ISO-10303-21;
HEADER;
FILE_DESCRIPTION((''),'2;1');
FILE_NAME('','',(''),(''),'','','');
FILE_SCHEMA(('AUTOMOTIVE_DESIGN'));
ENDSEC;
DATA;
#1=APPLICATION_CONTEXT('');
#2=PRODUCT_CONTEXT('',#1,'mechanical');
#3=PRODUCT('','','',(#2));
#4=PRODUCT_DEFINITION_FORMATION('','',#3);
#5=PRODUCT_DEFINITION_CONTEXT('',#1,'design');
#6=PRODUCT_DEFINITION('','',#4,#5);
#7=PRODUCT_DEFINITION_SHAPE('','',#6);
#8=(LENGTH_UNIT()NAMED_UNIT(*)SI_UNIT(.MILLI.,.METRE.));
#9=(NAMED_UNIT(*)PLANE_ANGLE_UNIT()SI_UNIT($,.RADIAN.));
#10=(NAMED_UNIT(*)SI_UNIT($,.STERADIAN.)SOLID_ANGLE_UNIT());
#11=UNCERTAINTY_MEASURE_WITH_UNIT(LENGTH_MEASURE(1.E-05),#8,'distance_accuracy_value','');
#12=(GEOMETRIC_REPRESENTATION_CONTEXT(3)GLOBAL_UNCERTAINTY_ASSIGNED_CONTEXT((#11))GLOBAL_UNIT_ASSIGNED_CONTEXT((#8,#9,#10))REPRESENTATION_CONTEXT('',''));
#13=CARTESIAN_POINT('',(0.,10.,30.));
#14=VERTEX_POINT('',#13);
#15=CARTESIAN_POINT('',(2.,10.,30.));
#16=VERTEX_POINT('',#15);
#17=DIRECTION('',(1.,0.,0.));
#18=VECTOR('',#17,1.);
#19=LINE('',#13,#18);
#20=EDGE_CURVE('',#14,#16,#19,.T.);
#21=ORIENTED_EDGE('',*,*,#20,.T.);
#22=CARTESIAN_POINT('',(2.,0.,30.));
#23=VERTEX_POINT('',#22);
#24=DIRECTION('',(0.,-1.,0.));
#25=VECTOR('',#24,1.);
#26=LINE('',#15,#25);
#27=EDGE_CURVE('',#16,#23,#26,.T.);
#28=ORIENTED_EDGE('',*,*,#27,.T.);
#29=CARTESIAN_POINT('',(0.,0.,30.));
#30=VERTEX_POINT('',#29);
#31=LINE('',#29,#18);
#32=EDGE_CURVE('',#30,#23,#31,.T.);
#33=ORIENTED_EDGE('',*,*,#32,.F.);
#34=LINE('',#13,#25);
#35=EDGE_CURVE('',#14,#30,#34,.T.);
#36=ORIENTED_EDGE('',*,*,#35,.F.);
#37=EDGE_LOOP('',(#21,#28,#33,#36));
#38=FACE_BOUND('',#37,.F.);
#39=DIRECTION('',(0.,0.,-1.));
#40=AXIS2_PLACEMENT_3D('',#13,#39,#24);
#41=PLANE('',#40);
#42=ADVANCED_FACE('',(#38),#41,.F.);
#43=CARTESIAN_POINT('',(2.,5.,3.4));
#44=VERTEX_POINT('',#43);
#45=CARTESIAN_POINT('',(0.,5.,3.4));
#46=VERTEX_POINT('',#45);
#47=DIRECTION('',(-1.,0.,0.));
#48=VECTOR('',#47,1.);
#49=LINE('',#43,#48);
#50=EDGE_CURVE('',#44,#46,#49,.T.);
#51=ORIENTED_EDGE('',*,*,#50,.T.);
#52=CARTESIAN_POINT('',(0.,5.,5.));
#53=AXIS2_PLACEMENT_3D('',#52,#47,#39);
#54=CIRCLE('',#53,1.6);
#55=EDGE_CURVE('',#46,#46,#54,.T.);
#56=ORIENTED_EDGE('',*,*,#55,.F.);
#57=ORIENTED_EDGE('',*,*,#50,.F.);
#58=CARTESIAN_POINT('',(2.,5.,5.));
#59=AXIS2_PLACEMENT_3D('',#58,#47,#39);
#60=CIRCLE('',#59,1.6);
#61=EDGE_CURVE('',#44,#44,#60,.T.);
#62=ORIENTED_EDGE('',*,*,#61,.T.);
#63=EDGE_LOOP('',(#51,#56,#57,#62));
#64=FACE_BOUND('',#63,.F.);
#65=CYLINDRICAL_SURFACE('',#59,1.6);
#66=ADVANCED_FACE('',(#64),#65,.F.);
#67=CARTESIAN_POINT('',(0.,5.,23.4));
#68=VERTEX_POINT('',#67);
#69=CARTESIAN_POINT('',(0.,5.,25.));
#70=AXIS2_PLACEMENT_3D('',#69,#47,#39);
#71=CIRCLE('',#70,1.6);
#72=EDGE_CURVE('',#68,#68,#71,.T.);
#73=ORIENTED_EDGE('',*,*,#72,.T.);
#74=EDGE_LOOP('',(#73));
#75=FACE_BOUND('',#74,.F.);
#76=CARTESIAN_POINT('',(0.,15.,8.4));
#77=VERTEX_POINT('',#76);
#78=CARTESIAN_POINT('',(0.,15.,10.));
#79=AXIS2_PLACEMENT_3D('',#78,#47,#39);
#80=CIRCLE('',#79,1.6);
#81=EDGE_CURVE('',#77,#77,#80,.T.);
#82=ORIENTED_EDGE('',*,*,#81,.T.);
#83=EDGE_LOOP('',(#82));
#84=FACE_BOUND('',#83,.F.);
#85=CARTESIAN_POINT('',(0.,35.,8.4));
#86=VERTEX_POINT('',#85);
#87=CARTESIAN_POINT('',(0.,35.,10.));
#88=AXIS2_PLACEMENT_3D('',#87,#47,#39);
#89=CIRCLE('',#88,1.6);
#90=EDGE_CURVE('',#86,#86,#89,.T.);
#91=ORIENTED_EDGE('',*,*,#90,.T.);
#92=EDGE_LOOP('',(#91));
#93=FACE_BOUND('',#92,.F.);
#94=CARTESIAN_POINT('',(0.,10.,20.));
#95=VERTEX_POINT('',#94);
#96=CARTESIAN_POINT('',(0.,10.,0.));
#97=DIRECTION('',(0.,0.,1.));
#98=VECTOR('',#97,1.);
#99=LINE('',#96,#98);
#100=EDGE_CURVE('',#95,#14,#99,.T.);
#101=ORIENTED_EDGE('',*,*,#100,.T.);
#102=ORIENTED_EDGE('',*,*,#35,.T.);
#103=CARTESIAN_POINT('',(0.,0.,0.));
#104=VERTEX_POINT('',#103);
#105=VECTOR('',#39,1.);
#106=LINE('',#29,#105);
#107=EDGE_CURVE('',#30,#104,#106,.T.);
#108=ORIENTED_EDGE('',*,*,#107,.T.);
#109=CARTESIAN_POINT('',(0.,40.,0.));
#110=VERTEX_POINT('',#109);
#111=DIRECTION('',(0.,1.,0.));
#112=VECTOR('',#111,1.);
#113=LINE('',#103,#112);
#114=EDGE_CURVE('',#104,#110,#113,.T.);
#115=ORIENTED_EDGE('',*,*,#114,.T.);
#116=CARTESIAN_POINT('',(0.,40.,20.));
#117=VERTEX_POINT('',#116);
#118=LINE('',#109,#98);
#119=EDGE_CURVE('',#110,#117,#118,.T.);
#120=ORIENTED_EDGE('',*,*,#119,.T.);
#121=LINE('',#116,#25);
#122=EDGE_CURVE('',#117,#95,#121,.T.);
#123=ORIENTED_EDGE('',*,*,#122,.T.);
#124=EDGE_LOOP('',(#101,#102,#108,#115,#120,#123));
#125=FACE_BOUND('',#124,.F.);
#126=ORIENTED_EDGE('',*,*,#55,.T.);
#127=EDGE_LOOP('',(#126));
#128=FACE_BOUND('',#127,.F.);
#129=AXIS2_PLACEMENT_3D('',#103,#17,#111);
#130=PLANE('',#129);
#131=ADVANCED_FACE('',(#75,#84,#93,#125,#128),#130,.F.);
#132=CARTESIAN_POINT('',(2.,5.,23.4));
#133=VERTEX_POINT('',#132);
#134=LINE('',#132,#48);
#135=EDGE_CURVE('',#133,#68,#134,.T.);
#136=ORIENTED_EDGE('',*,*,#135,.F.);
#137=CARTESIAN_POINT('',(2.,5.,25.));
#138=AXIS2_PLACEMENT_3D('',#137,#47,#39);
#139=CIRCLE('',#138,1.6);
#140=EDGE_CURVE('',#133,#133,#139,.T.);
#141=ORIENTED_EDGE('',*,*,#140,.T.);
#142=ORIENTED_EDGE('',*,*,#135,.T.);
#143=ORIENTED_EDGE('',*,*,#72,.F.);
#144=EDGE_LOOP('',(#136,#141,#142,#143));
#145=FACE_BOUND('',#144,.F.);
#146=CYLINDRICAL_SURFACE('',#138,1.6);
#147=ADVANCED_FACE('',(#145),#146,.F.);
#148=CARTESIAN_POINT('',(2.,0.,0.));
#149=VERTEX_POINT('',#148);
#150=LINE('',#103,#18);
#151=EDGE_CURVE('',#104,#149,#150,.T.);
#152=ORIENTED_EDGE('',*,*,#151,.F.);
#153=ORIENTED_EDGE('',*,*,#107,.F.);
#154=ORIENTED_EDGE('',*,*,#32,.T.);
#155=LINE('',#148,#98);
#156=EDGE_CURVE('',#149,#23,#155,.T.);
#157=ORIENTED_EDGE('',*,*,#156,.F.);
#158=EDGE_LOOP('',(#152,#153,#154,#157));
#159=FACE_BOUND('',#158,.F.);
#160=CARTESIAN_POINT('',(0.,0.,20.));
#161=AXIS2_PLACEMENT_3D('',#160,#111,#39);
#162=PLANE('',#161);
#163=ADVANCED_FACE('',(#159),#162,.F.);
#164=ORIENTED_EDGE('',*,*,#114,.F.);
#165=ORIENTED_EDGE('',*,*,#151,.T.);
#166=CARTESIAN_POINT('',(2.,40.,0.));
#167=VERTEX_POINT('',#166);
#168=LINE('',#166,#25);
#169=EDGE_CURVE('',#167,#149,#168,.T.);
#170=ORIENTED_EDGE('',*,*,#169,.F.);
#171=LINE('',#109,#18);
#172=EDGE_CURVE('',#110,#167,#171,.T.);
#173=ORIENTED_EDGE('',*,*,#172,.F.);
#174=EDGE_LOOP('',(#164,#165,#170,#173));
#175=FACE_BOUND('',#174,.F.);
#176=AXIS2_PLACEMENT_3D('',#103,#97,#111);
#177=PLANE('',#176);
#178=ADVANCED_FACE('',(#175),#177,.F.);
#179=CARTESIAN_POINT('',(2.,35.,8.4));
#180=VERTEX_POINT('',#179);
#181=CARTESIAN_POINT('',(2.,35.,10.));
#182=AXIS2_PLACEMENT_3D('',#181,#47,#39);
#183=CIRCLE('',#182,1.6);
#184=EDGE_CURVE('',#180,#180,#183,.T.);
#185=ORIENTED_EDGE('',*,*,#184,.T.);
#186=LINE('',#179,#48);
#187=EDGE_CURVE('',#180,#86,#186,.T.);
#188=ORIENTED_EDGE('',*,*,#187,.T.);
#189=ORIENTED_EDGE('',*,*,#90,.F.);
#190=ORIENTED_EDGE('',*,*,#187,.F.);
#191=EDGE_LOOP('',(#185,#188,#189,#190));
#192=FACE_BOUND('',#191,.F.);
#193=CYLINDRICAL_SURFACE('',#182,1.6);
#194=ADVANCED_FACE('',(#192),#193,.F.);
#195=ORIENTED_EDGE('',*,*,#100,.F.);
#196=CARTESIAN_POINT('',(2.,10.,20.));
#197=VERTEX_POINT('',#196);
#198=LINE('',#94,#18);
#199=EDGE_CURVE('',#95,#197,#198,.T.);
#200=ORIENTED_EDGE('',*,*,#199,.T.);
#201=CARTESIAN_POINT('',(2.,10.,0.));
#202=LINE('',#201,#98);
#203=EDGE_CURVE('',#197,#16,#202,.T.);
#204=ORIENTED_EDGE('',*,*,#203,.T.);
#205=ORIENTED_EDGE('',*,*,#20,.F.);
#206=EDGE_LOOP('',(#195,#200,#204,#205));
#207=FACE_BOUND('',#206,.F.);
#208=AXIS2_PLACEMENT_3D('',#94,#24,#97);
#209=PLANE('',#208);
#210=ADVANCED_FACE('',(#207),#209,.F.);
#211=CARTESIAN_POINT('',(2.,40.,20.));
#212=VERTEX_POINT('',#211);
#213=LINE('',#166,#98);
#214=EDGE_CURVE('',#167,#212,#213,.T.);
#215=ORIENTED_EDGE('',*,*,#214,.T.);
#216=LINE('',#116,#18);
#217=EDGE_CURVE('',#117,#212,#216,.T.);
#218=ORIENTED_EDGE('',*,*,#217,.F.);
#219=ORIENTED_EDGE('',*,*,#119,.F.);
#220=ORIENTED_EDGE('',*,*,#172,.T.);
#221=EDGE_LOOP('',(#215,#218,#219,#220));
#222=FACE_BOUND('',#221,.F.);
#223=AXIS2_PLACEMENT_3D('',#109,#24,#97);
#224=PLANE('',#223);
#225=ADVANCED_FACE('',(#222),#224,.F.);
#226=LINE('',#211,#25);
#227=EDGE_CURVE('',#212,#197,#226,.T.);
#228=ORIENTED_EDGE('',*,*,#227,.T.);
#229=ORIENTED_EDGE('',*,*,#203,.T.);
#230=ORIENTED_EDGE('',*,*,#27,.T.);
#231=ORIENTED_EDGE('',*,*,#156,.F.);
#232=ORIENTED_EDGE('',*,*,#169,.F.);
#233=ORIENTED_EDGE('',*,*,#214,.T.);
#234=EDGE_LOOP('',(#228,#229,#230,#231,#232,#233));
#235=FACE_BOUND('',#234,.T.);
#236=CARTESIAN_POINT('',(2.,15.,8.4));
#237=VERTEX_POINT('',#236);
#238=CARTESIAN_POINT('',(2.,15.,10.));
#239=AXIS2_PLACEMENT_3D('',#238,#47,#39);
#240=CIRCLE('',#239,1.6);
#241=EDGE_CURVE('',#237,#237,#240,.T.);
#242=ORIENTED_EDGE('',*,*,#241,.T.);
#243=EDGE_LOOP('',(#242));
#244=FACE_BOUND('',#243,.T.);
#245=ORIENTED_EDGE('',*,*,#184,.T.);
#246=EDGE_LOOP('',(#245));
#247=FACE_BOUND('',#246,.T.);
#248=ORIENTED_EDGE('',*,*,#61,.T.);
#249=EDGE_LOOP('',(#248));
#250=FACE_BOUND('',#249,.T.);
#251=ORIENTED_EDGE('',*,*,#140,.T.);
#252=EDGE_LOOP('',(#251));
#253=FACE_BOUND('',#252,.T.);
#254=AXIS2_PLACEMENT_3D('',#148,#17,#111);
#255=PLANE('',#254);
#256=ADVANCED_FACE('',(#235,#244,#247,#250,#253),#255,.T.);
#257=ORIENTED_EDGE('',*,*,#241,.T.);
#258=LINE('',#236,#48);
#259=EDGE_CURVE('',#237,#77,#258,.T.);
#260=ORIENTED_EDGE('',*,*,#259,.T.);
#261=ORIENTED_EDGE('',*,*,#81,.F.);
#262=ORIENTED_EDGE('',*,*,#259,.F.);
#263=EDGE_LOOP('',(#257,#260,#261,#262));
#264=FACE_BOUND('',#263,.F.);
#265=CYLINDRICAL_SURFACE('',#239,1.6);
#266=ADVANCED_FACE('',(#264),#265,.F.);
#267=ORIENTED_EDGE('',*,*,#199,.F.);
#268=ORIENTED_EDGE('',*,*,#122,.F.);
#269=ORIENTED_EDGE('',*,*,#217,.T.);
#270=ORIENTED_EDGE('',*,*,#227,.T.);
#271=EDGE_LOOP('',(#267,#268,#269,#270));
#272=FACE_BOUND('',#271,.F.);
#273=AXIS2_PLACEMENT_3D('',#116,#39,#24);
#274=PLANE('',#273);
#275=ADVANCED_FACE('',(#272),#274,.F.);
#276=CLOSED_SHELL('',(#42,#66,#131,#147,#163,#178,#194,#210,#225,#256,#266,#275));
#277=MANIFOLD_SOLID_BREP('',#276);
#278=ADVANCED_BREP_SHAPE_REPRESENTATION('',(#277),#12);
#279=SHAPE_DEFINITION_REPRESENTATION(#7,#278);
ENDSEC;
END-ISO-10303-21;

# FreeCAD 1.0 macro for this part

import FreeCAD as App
import Part
import Sketcher
from FreeCAD import Vector

doc = App.newDocument("Part")
body = doc.addObject("PartDesign::Body", "Body")

sketch1 = body.newObject("Sketcher::SketchObject", "Sketch")
sketch1.AttachmentSupport = (doc.getObject("YZ_Plane"), [""])
sketch1.MapMode = "FlatFace"
sketch1.addGeometry(Part.LineSegment(Vector(0, 0, 0), Vector(40, 0, 0)), False)
sketch1.addGeometry(Part.LineSegment(Vector(40, 0, 0), Vector(40, 20, 0)), False)
sketch1.addGeometry(Part.LineSegment(Vector(40, 20, 0), Vector(10, 20, 0)), False)
sketch1.addGeometry(Part.LineSegment(Vector(10, 20, 0), Vector(10, 30, 0)), False)
sketch1.addGeometry(Part.LineSegment(Vector(10, 30, 0), Vector(0, 30, 0)), False)
sketch1.addGeometry(Part.LineSegment(Vector(0, 30, 0), Vector(0, 0, 0)), False)
sketch1.addConstraint(Sketcher.Constraint("Coincident", 0, 2, 1, 1))
sketch1.addConstraint(Sketcher.Constraint("Coincident", 1, 2, 2, 1))
sketch1.addConstraint(Sketcher.Constraint("Coincident", 2, 2, 3, 1))
sketch1.addConstraint(Sketcher.Constraint("Coincident", 3, 2, 4, 1))
sketch1.addConstraint(Sketcher.Constraint("Coincident", 4, 2, 5, 1))
sketch1.addConstraint(Sketcher.Constraint("Coincident", 5, 2, 0, 1))
sketch1.addConstraint(Sketcher.Constraint("Horizontal", 0))
sketch1.addConstraint(Sketcher.Constraint("Vertical", 1))
sketch1.addConstraint(Sketcher.Constraint("Horizontal", 2))
sketch1.addConstraint(Sketcher.Constraint("Vertical", 3))
sketch1.addConstraint(Sketcher.Constraint("Horizontal", 4))
sketch1.addConstraint(Sketcher.Constraint("Vertical", 5))
sketch1.addConstraint(Sketcher.Constraint("Coincident", 5, 2, -1, 1))
sketch1.addConstraint(Sketcher.Constraint("Equal", 4, 3))
sketch1.addConstraint(Sketcher.Constraint("Equal", 2, 5))
sketch1.addConstraint(Sketcher.Constraint("DistanceX", 2, 2, 2, 1, 30.0))
sketch1.addConstraint(Sketcher.Constraint("DistanceX", 4, 2, 4, 1, 10.0))
pad1 = body.newObject("PartDesign::Pad", "Pad")
pad1.Profile = sketch1
pad1.Length = 2

sketch2 = body.newObject("Sketcher::SketchObject", "Sketch001")
sketch2.AttachmentSupport = (doc.getObject("YZ_Plane"), [""])
sketch2.MapMode = "FlatFace"
sketch2.AttachmentOffset = App.Placement(Vector(0, 0, 2), App.Rotation())
sketch2.addGeometry(Part.Circle(Vector(5, 25, 0), Vector(0, 0, 1), 1.6), False)
sketch2.addGeometry(Part.Circle(Vector(5, 5, 0), Vector(0, 0, 1), 1.6), False)
sketch2.addGeometry(Part.Circle(Vector(15, 10, 0), Vector(0, 0, 1), 1.6), False)
sketch2.addGeometry(Part.Circle(Vector(35, 10, 0), Vector(0, 0, 1), 1.6), False)
sketch2.addConstraint(Sketcher.Constraint("Equal", 0, 1))
sketch2.addConstraint(Sketcher.Constraint("Equal", 1, 2))
sketch2.addConstraint(Sketcher.Constraint("Equal", 2, 3))
sketch2.addConstraint(Sketcher.Constraint("Horizontal", 2, 3, 3, 3))
sketch2.addConstraint(Sketcher.Constraint("Vertical", 0, 3, 1, 3))
sketch2.addConstraint(Sketcher.Constraint("Diameter", 0, 3.2))
sketch2.addConstraint(Sketcher.Constraint("DistanceX", -1, 1, 0, 3, 5.0))
sketch2.addConstraint(Sketcher.Constraint("DistanceY", -1, 1, 0, 3, 25.0))
sketch2.addConstraint(Sketcher.Constraint("DistanceY", -1, 1, 1, 3, 5.0))
sketch2.addConstraint(Sketcher.Constraint("DistanceX", -1, 1, 2, 3, 15.0))
sketch2.addConstraint(Sketcher.Constraint("DistanceY", -1, 1, 2, 3, 10.0))
sketch2.addConstraint(Sketcher.Constraint("DistanceX", -1, 1, 3, 3, 35.0))
doc.recompute()
hole = body.newObject("PartDesign::Hole", "Hole")
hole.Profile = sketch2
hole.ThreadType = "None"
hole.Diameter = 3.2
hole.DepthType = "ThroughAll"

doc.recompute()
